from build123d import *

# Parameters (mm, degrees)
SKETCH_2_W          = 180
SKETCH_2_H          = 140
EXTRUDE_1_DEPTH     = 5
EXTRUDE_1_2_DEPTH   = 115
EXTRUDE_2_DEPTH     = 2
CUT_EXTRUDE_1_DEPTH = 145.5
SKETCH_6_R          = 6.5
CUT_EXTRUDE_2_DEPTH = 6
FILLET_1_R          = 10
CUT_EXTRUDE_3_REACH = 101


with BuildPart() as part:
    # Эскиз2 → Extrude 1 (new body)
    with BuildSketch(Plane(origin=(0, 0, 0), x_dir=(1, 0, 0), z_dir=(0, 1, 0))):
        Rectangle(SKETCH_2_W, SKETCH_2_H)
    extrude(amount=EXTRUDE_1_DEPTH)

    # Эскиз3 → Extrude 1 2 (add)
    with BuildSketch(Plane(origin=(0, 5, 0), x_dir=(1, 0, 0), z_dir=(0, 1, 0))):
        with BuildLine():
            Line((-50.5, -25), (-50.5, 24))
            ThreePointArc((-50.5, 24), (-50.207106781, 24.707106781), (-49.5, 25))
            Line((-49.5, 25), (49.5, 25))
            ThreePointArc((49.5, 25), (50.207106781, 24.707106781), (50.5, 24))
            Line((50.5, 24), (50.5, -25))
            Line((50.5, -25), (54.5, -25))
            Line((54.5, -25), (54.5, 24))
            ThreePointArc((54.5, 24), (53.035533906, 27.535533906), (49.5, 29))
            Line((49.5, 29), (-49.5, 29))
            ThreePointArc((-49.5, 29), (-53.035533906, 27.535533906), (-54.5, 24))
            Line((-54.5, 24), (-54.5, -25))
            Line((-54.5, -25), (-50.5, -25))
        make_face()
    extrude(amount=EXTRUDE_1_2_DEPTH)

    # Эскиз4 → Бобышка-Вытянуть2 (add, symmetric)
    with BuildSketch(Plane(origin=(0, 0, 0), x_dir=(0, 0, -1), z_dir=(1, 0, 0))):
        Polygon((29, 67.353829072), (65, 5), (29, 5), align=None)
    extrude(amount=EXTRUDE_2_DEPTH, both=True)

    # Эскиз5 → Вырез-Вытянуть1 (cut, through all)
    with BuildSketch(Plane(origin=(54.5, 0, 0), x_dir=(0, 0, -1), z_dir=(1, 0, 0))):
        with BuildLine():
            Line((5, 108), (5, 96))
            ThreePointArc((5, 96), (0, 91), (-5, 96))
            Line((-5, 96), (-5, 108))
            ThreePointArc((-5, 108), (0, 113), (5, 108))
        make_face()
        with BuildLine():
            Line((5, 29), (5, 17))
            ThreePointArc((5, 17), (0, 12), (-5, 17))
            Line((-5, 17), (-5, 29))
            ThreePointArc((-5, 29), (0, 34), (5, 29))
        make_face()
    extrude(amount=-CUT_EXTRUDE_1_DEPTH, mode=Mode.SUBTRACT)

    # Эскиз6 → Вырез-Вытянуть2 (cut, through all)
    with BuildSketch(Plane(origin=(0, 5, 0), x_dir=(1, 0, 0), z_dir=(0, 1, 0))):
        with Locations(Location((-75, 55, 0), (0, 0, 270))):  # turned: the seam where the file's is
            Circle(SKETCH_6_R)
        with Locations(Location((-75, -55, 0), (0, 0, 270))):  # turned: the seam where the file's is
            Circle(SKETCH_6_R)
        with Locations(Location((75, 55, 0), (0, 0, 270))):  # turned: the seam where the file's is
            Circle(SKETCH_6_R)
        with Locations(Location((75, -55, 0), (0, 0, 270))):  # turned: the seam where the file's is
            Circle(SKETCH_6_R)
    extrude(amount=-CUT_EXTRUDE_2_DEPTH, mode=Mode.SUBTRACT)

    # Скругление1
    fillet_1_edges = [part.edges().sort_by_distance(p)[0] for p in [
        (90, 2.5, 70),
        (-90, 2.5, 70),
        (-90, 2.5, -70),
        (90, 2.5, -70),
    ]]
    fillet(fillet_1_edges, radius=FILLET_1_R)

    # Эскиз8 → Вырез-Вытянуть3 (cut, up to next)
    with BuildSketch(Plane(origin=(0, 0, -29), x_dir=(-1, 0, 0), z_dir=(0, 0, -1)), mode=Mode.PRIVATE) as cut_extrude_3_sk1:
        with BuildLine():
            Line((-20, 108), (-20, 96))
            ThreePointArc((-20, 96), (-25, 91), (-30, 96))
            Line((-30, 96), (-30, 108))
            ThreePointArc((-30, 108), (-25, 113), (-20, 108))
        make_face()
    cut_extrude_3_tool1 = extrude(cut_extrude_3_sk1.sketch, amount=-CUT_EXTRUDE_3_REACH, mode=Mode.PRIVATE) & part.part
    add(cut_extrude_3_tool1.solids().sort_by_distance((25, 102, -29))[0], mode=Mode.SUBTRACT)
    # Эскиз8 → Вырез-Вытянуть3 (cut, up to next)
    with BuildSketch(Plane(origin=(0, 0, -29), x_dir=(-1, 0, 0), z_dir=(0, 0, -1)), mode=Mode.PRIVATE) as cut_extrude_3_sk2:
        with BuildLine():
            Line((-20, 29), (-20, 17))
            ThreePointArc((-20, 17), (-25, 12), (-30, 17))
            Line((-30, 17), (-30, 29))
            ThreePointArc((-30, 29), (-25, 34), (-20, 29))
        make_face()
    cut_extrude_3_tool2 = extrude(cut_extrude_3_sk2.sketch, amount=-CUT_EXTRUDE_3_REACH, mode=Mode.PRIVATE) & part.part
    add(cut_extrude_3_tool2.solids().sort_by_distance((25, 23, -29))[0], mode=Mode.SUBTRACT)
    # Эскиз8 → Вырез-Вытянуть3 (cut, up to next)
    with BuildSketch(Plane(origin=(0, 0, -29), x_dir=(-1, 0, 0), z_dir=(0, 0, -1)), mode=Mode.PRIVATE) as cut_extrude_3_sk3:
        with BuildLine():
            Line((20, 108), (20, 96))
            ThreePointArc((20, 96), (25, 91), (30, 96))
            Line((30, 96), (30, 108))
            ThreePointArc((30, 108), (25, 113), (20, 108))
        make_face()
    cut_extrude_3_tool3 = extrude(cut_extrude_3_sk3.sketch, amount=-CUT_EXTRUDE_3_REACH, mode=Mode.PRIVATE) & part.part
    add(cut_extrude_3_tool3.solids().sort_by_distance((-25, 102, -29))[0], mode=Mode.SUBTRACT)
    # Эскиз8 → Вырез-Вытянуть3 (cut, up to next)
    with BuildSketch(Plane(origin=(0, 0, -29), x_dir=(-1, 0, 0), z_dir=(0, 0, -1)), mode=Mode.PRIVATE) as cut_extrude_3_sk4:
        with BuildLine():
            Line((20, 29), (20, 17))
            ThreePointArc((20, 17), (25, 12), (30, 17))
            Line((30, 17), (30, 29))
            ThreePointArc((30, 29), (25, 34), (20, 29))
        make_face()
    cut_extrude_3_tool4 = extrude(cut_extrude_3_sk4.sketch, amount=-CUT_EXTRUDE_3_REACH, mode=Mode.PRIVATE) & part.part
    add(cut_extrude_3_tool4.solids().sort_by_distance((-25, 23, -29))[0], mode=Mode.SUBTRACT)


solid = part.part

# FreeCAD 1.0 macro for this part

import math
import FreeCAD as App
import Part
import Sketcher
Q = App.Units.Quantity


def edges_at(feature, points):
    """Names of the edges that pass closest to the given points."""
    edges = feature.Shape.Edges
    near = lambda p: min(range(len(edges)), key=lambda i: edges[i].distToShape(Part.Vertex(*p))[0])
    return sorted({f"Edge{near(p) + 1}" for p in points})


def add_polygon(sketch, points):
    """Adds a closed chain of lines whose ends are joined by coincident constraints."""
    first, n = sketch.GeometryCount, len(points)
    for a, b in zip(points, points[1:] + points[:1]):
        sketch.addGeometry(Part.LineSegment(App.Vector(*a, 0), App.Vector(*b, 0)), False)
    for i in range(n):
        sketch.addConstraint(Sketcher.Constraint("Coincident", first + i, 2, first + (i + 1) % n, 1))

doc = App.newDocument("Part")
body = doc.addObject("PartDesign::Body", "Body")

# Sketch on XZ plane
sketch1 = body.newObject("Sketcher::SketchObject", "Sketch")
sketch1.AttachmentSupport = (doc.getObject("XZ_Plane"), [""])
sketch1.MapMode = "FlatFace"
add_polygon(sketch1, [(-90, -70), (-90, 70), (90, 70), (90, -70)])  # lines 0-3
sketch1.addConstraint(Sketcher.Constraint("Vertical", 0))
sketch1.addConstraint(Sketcher.Constraint("Horizontal", 1))
sketch1.addConstraint(Sketcher.Constraint("Vertical", 2))
sketch1.addConstraint(Sketcher.Constraint("Horizontal", 3))
sketch1.addConstraint(Sketcher.Constraint("Symmetric", 0, 2, 2, 2, -1, 1))
sketch1.addConstraint(Sketcher.Constraint("DistanceX", 1, 1, 1, 2, Q("180 mm")))
sketch1.addConstraint(Sketcher.Constraint("DistanceY", 0, 1, 0, 2, Q("140 mm")))
pad1 = body.newObject("PartDesign::Pad", "Pad")
pad1.Profile = sketch1
pad1.Length = 5
pad1.Reversed = True

# Sketch on XZ plane
sketch2 = body.newObject("Sketcher::SketchObject", "Sketch001")
sketch2.AttachmentSupport = (doc.getObject("XZ_Plane"), [""])
sketch2.MapMode = "FlatFace"
sketch2.AttachmentOffset = App.Placement(App.Vector(0, 0, -5), App.Rotation())
sketch2.addGeometry(Part.LineSegment(App.Vector(-50.5, 25, 0), App.Vector(-50.5, -24, 0)), False)
sketch2.addGeometry(Part.ArcOfCircle(Part.Circle(App.Vector(-49.5, -24, 0), App.Vector(0, 0, 1), 1), math.radians(-180), math.radians(-90)), False)
sketch2.addGeometry(Part.LineSegment(App.Vector(-49.5, -25, 0), App.Vector(49.5, -25, 0)), False)
sketch2.addGeometry(Part.ArcOfCircle(Part.Circle(App.Vector(49.5, -24, 0), App.Vector(0, 0, 1), 1), math.radians(-90), math.radians(0)), False)
sketch2.addGeometry(Part.LineSegment(App.Vector(50.5, -24, 0), App.Vector(50.5, 25, 0)), False)
sketch2.addGeometry(Part.LineSegment(App.Vector(50.5, 25, 0), App.Vector(54.5, 25, 0)), False)
sketch2.addGeometry(Part.LineSegment(App.Vector(54.5, 25, 0), App.Vector(54.5, -24, 0)), False)
sketch2.addGeometry(Part.ArcOfCircle(Part.Circle(App.Vector(49.5, -24, 0), App.Vector(0, 0, 1), 5), math.radians(-90), math.radians(0)), False)
sketch2.addGeometry(Part.LineSegment(App.Vector(49.5, -29, 0), App.Vector(-49.5, -29, 0)), False)
sketch2.addGeometry(Part.ArcOfCircle(Part.Circle(App.Vector(-49.5, -24, 0), App.Vector(0, 0, 1), 5), math.radians(180), math.radians(270)), False)
sketch2.addGeometry(Part.LineSegment(App.Vector(-54.5, -24, 0), App.Vector(-54.5, 25, 0)), False)
sketch2.addGeometry(Part.LineSegment(App.Vector(-54.5, 25, 0), App.Vector(-50.5, 25, 0)), False)
sketch2.addConstraint(Sketcher.Constraint("Tangent", 0, 2, 1, 1))
sketch2.addConstraint(Sketcher.Constraint("Tangent", 1, 2, 2, 1))
sketch2.addConstraint(Sketcher.Constraint("Tangent", 2, 2, 3, 1))
sketch2.addConstraint(Sketcher.Constraint("Tangent", 3, 2, 4, 1))
sketch2.addConstraint(Sketcher.Constraint("Coincident", 4, 2, 5, 1))
sketch2.addConstraint(Sketcher.Constraint("Coincident", 5, 2, 6, 1))
sketch2.addConstraint(Sketcher.Constraint("Tangent", 6, 2, 7, 2))
sketch2.addConstraint(Sketcher.Constraint("Tangent", 7, 1, 8, 1))
sketch2.addConstraint(Sketcher.Constraint("Tangent", 8, 2, 9, 2))
sketch2.addConstraint(Sketcher.Constraint("Tangent", 9, 1, 10, 1))
sketch2.addConstraint(Sketcher.Constraint("Coincident", 10, 2, 11, 1))
sketch2.addConstraint(Sketcher.Constraint("Coincident", 11, 2, 0, 1))
sketch2.addConstraint(Sketcher.Constraint("Vertical", 0))
sketch2.addConstraint(Sketcher.Constraint("Horizontal", 2))
sketch2.addConstraint(Sketcher.Constraint("Vertical", 4))
sketch2.addConstraint(Sketcher.Constraint("Horizontal", 5))
sketch2.addConstraint(Sketcher.Constraint("Vertical", 6))
sketch2.addConstraint(Sketcher.Constraint("Horizontal", 8))
sketch2.addConstraint(Sketcher.Constraint("Vertical", 10))
sketch2.addConstraint(Sketcher.Constraint("Horizontal", 11))
sketch2.addConstraint(Sketcher.Constraint("Coincident", 7, 3, 3, 3))
sketch2.addConstraint(Sketcher.Constraint("Coincident", 9, 3, 1, 3))
sketch2.addConstraint(Sketcher.Constraint("Equal", 1, 3))
sketch2.addConstraint(Sketcher.Constraint("Symmetric", 5, 2, 10, 2, -2))
sketch2.addConstraint(Sketcher.Constraint("Radius", 1, Q("1 mm")))
sketch2.addConstraint(Sketcher.Constraint("Radius", 7, Q("5 mm")))
sketch2.addConstraint(Sketcher.Constraint("DistanceX", 2, 1, 2, 2, Q("99 mm")))
sketch2.addConstraint(Sketcher.Constraint("DistanceY", 0, 2, 0, 1, Q("49 mm")))
sketch2.addConstraint(Sketcher.Constraint("DistanceY", 1, 3, -1, 1, Q("24 mm")))
pad2 = body.newObject("PartDesign::Pad", "Pad001")
pad2.Profile = sketch2
pad2.Length = 115
pad2.Reversed = True

# Sketch on YZ plane
sketch3 = body.newObject("Sketcher::SketchObject", "Sketch002")
sketch3.AttachmentSupport = (doc.getObject("YZ_Plane"), [""])
sketch3.MapMode = "FlatFace"
add_polygon(sketch3, [(5, -65), (67.353829, -29), (5, -29)])  # lines 0-2
sketch3.addConstraint(Sketcher.Constraint("Horizontal", 1))
sketch3.addConstraint(Sketcher.Constraint("Vertical", 2))
sketch3.addConstraint(Sketcher.Constraint("DistanceY", 2, 2, 2, 1, Q("36 mm")))
sketch3.addConstraint(Sketcher.Constraint("Angle", 0, Q("30 deg")))
sketch3.addConstraint(Sketcher.Constraint("DistanceY", 0, 2, -1, 1, Q("29 mm")))
sketch3.addConstraint(Sketcher.Constraint("DistanceX", -1, 1, 1, 2, Q("5 mm")))
pad3 = body.newObject("PartDesign::Pad", "Pad002")
pad3.Profile = sketch3
pad3.Length = 4
pad3.Midplane = True

# Sketch on YZ plane
sketch4 = body.newObject("Sketcher::SketchObject", "Sketch003")
sketch4.AttachmentSupport = (doc.getObject("YZ_Plane"), [""])
sketch4.MapMode = "FlatFace"
sketch4.AttachmentOffset = App.Placement(App.Vector(0, 0, 54.5), App.Rotation())
sketch4.addGeometry(Part.LineSegment(App.Vector(96, -5, 0), App.Vector(108, -5, 0)), False)
sketch4.addGeometry(Part.ArcOfCircle(Part.Circle(App.Vector(108, 0, 0), App.Vector(0, 0, 1), 5), math.radians(-90), math.radians(90)), False)
sketch4.addGeometry(Part.LineSegment(App.Vector(108, 5, 0), App.Vector(96, 5, 0)), False)
sketch4.addGeometry(Part.ArcOfCircle(Part.Circle(App.Vector(96, 0, 0), App.Vector(0, 0, 1), 5), math.radians(90), math.radians(270)), False)
sketch4.addGeometry(Part.LineSegment(App.Vector(17, -5, 0), App.Vector(29, -5, 0)), False)
sketch4.addGeometry(Part.ArcOfCircle(Part.Circle(App.Vector(29, 0, 0), App.Vector(0, 0, 1), 5), math.radians(-90), math.radians(90)), False)
sketch4.addGeometry(Part.LineSegment(App.Vector(29, 5, 0), App.Vector(17, 5, 0)), False)
sketch4.addGeometry(Part.ArcOfCircle(Part.Circle(App.Vector(17, 0, 0), App.Vector(0, 0, 1), 5), math.radians(90), math.radians(270)), False)
sketch4.addConstraint(Sketcher.Constraint("Tangent", 0, 2, 1, 1))
sketch4.addConstraint(Sketcher.Constraint("Tangent", 1, 2, 2, 1))
sketch4.addConstraint(Sketcher.Constraint("Tangent", 2, 2, 3, 1))
sketch4.addConstraint(Sketcher.Constraint("Tangent", 3, 2, 0, 1))
sketch4.addConstraint(Sketcher.Constraint("Tangent", 4, 2, 5, 1))
sketch4.addConstraint(Sketcher.Constraint("Tangent", 5, 2, 6, 1))
sketch4.addConstraint(Sketcher.Constraint("Tangent", 6, 2, 7, 1))
sketch4.addConstraint(Sketcher.Constraint("Tangent", 7, 2, 4, 1))
sketch4.addConstraint(Sketcher.Constraint("Horizontal", 0))
sketch4.addConstraint(Sketcher.Constraint("Horizontal", 2))
sketch4.addConstraint(Sketcher.Constraint("Horizontal", 4))
sketch4.addConstraint(Sketcher.Constraint("Horizontal", 6))
sketch4.addConstraint(Sketcher.Constraint("Equal", 3, 5))
sketch4.addConstraint(Sketcher.Constraint("PointOnObject", 1, 3, -1))
sketch4.addConstraint(Sketcher.Constraint("PointOnObject", 5, 3, -1))
sketch4.addConstraint(Sketcher.Constraint("Equal", 2, 4))
sketch4.addConstraint(Sketcher.Constraint("Radius", 1, Q("5 mm")))
sketch4.addConstraint(Sketcher.Constraint("DistanceX", 0, 1, 0, 2, Q("12 mm")))
sketch4.addConstraint(Sketcher.Constraint("DistanceX", -1, 1, 1, 3, Q("108 mm")))
sketch4.addConstraint(Sketcher.Constraint("DistanceX", -1, 1, 5, 3, Q("29 mm")))
pocket1 = body.newObject("PartDesign::Pocket", "Pocket")
pocket1.Profile = sketch4
pocket1.Type = "ThroughAll"

# Sketch on XZ plane
sketch5 = body.newObject("Sketcher::SketchObject", "Sketch004")
sketch5.AttachmentSupport = (doc.getObject("XZ_Plane"), [""])
sketch5.MapMode = "FlatFace"
sketch5.AttachmentOffset = App.Placement(App.Vector(0, 0, -5), App.Rotation())
sketch5.addGeometry(Part.Circle(App.Vector(-75, -55, 0), App.Vector(0, 0, 1), 6.5), False)
sketch5.addGeometry(Part.Circle(App.Vector(-75, 55, 0), App.Vector(0, 0, 1), 6.5), False)
sketch5.addGeometry(Part.Circle(App.Vector(75, -55, 0), App.Vector(0, 0, 1), 6.5), False)
sketch5.addGeometry(Part.Circle(App.Vector(75, 55, 0), App.Vector(0, 0, 1), 6.5), False)
sketch5.addConstraint(Sketcher.Constraint("Equal", 0, 1))
sketch5.addConstraint(Sketcher.Constraint("Equal", 1, 2))
sketch5.addConstraint(Sketcher.Constraint("Equal", 2, 3))
sketch5.addConstraint(Sketcher.Constraint("Symmetric", 1, 3, 2, 3, -1, 1))
sketch5.addConstraint(Sketcher.Constraint("Symmetric", 0, 3, 3, 3, -1, 1))
sketch5.addConstraint(Sketcher.Constraint("Symmetric", 0, 3, 2, 3, -2))
sketch5.addConstraint(Sketcher.Constraint("Diameter", 0, Q("13 mm")))
sketch5.addConstraint(Sketcher.Constraint("DistanceX", 0, 3, -1, 1, Q("75 mm")))
sketch5.addConstraint(Sketcher.Constraint("DistanceY", 0, 3, -1, 1, Q("55 mm")))
pocket2 = body.newObject("PartDesign::Pocket", "Pocket001")
pocket2.Profile = sketch5
pocket2.Type = "ThroughAll"
pocket2.Reversed = True
doc.recompute()

fillet = body.newObject("PartDesign::Fillet", "Fillet")
fillet.Base = (pocket2, edges_at(pocket2, [
    (90, 2.5, 70),
    (-90, 2.5, 70),
    (-90, 2.5, -70),
    (90, 2.5, -70),
]))
fillet.Radius = 10

# Sketch on XY plane
sketch6 = body.newObject("Sketcher::SketchObject", "Sketch005")
sketch6.AttachmentSupport = (doc.getObject("XY_Plane"), [""])
sketch6.MapMode = "FlatFace"
sketch6.AttachmentOffset = App.Placement(App.Vector(0, 0, -29), App.Rotation())
sketch6.addGeometry(Part.LineSegment(App.Vector(20, 96, 0), App.Vector(20, 108, 0)), False)
sketch6.addGeometry(Part.ArcOfCircle(Part.Circle(App.Vector(25, 108, 0), App.Vector(0, 0, 1), 5), math.radians(0), math.radians(180)), False)
sketch6.addGeometry(Part.LineSegment(App.Vector(30, 108, 0), App.Vector(30, 96, 0)), False)
sketch6.addGeometry(Part.ArcOfCircle(Part.Circle(App.Vector(25, 96, 0), App.Vector(0, 0, 1), 5), math.radians(180), math.radians(360)), False)
sketch6.addConstraint(Sketcher.Constraint("Tangent", 0, 2, 1, 2))
sketch6.addConstraint(Sketcher.Constraint("Tangent", 1, 1, 2, 1))
sketch6.addConstraint(Sketcher.Constraint("Tangent", 2, 2, 3, 2))
sketch6.addConstraint(Sketcher.Constraint("Tangent", 3, 1, 0, 1))
sketch6.addConstraint(Sketcher.Constraint("Vertical", 0))
sketch6.addConstraint(Sketcher.Constraint("Vertical", 2))
sketch6.addConstraint(Sketcher.Constraint("Radius", 1, Q("5 mm")))
sketch6.addConstraint(Sketcher.Constraint("DistanceY", 0, 1, 0, 2, Q("12 mm")))
sketch6.addConstraint(Sketcher.Constraint("DistanceX", -1, 1, 1, 3, Q("25 mm")))
sketch6.addConstraint(Sketcher.Constraint("DistanceY", -1, 1, 1, 3, Q("108 mm")))
pocket3 = body.newObject("PartDesign::Pocket", "Pocket002")
pocket3.Profile = sketch6
pocket3.Type = "UpToFirst"
pocket3.Reversed = True

# Sketch on XY plane
sketch7 = body.newObject("Sketcher::SketchObject", "Sketch006")
sketch7.AttachmentSupport = (doc.getObject("XY_Plane"), [""])
sketch7.MapMode = "FlatFace"
sketch7.AttachmentOffset = App.Placement(App.Vector(0, 0, -29), App.Rotation())
sketch7.addGeometry(Part.LineSegment(App.Vector(20, 17, 0), App.Vector(20, 29, 0)), False)
sketch7.addGeometry(Part.ArcOfCircle(Part.Circle(App.Vector(25, 29, 0), App.Vector(0, 0, 1), 5), math.radians(0), math.radians(180)), False)
sketch7.addGeometry(Part.LineSegment(App.Vector(30, 29, 0), App.Vector(30, 17, 0)), False)
sketch7.addGeometry(Part.ArcOfCircle(Part.Circle(App.Vector(25, 17, 0), App.Vector(0, 0, 1), 5), math.radians(180), math.radians(360)), False)
sketch7.addConstraint(Sketcher.Constraint("Tangent", 0, 2, 1, 2))
sketch7.addConstraint(Sketcher.Constraint("Tangent", 1, 1, 2, 1))
sketch7.addConstraint(Sketcher.Constraint("Tangent", 2, 2, 3, 2))
sketch7.addConstraint(Sketcher.Constraint("Tangent", 3, 1, 0, 1))
sketch7.addConstraint(Sketcher.Constraint("Vertical", 0))
sketch7.addConstraint(Sketcher.Constraint("Vertical", 2))
sketch7.addConstraint(Sketcher.Constraint("Radius", 1, Q("5 mm")))
sketch7.addConstraint(Sketcher.Constraint("DistanceY", 0, 1, 0, 2, Q("12 mm")))
sketch7.addConstraint(Sketcher.Constraint("DistanceX", -1, 1, 1, 3, Q("25 mm")))
sketch7.addConstraint(Sketcher.Constraint("DistanceY", -1, 1, 1, 3, Q("29 mm")))
pocket4 = body.newObject("PartDesign::Pocket", "Pocket003")
pocket4.Profile = sketch7
pocket4.Type = "UpToFirst"
pocket4.Reversed = True

# Sketch on XY plane
sketch8 = body.newObject("Sketcher::SketchObject", "Sketch007")
sketch8.AttachmentSupport = (doc.getObject("XY_Plane"), [""])
sketch8.MapMode = "FlatFace"
sketch8.AttachmentOffset = App.Placement(App.Vector(0, 0, -29), App.Rotation())
sketch8.addGeometry(Part.LineSegment(App.Vector(-20, 108, 0), App.Vector(-20, 96, 0)), False)
sketch8.addGeometry(Part.ArcOfCircle(Part.Circle(App.Vector(-25, 96, 0), App.Vector(0, 0, 1), 5), math.radians(180), math.radians(360)), False)
sketch8.addGeometry(Part.LineSegment(App.Vector(-30, 96, 0), App.Vector(-30, 108, 0)), False)
sketch8.addGeometry(Part.ArcOfCircle(Part.Circle(App.Vector(-25, 108, 0), App.Vector(0, 0, 1), 5), math.radians(0), math.radians(180)), False)
sketch8.addConstraint(Sketcher.Constraint("Tangent", 0, 2, 1, 2))
sketch8.addConstraint(Sketcher.Constraint("Tangent", 1, 1, 2, 1))
sketch8.addConstraint(Sketcher.Constraint("Tangent", 2, 2, 3, 2))
sketch8.addConstraint(Sketcher.Constraint("Tangent", 3, 1, 0, 1))
sketch8.addConstraint(Sketcher.Constraint("Vertical", 0))
sketch8.addConstraint(Sketcher.Constraint("Vertical", 2))
sketch8.addConstraint(Sketcher.Constraint("Radius", 1, Q("5 mm")))
sketch8.addConstraint(Sketcher.Constraint("DistanceY", 0, 2, 0, 1, Q("12 mm")))
sketch8.addConstraint(Sketcher.Constraint("DistanceX", 1, 3, -1, 1, Q("25 mm")))
sketch8.addConstraint(Sketcher.Constraint("DistanceY", -1, 1, 1, 3, Q("96 mm")))
pocket5 = body.newObject("PartDesign::Pocket", "Pocket004")
pocket5.Profile = sketch8
pocket5.Type = "UpToFirst"
pocket5.Reversed = True

# Sketch on XY plane
sketch9 = body.newObject("Sketcher::SketchObject", "Sketch008")
sketch9.AttachmentSupport = (doc.getObject("XY_Plane"), [""])
sketch9.MapMode = "FlatFace"
sketch9.AttachmentOffset = App.Placement(App.Vector(0, 0, -29), App.Rotation())
sketch9.addGeometry(Part.LineSegment(App.Vector(-20, 29, 0), App.Vector(-20, 17, 0)), False)
sketch9.addGeometry(Part.ArcOfCircle(Part.Circle(App.Vector(-25, 17, 0), App.Vector(0, 0, 1), 5), math.radians(180), math.radians(360)), False)
sketch9.addGeometry(Part.LineSegment(App.Vector(-30, 17, 0), App.Vector(-30, 29, 0)), False)
sketch9.addGeometry(Part.ArcOfCircle(Part.Circle(App.Vector(-25, 29, 0), App.Vector(0, 0, 1), 5), math.radians(0), math.radians(180)), False)
sketch9.addConstraint(Sketcher.Constraint("Tangent", 0, 2, 1, 2))
sketch9.addConstraint(Sketcher.Constraint("Tangent", 1, 1, 2, 1))
sketch9.addConstraint(Sketcher.Constraint("Tangent", 2, 2, 3, 2))
sketch9.addConstraint(Sketcher.Constraint("Tangent", 3, 1, 0, 1))
sketch9.addConstraint(Sketcher.Constraint("Vertical", 0))
sketch9.addConstraint(Sketcher.Constraint("Vertical", 2))
sketch9.addConstraint(Sketcher.Constraint("Radius", 1, Q("5 mm")))
sketch9.addConstraint(Sketcher.Constraint("DistanceY", 0, 2, 0, 1, Q("12 mm")))
sketch9.addConstraint(Sketcher.Constraint("DistanceX", 1, 3, -1, 1, Q("25 mm")))
sketch9.addConstraint(Sketcher.Constraint("DistanceY", -1, 1, 1, 3, Q("17 mm")))
pocket6 = body.newObject("PartDesign::Pocket", "Pocket005")
pocket6.Profile = sketch9
pocket6.Type = "UpToFirst"
pocket6.Reversed = True

doc.recompute()
